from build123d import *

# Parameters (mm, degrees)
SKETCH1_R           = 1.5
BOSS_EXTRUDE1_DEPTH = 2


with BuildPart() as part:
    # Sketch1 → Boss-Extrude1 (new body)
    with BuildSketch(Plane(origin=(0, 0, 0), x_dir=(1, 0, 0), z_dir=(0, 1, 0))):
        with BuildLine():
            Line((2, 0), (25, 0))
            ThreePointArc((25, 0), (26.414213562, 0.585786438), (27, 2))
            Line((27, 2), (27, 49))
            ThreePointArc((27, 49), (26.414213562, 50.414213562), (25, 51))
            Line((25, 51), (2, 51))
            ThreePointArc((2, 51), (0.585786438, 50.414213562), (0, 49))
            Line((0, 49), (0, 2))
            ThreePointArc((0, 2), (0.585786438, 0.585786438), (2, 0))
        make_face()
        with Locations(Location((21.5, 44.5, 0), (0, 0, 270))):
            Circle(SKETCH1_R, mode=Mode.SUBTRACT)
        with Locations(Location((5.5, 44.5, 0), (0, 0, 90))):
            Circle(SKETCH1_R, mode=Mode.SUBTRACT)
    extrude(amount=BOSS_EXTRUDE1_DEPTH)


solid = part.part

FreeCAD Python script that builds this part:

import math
import FreeCAD as App
import Part
import Sketcher

doc = App.newDocument("Part")
params = doc.addObject("Spreadsheet::Sheet", "Params")
for row, (alias, value) in enumerate([
    ("sketch1_diameter", "3 mm"),
    ("sketch1_radius", "2 mm"),
    ("sketch1_width", "23 mm"),
    ("sketch1_height", "47 mm"),
    ("pad1_length", "2 mm"),
], start=1):
    params.set(f"A{row}", alias)
    params.set(f"B{row}", "=" + value)
    params.setAlias(f"B{row}", alias)

body = doc.addObject("PartDesign::Body", "Body")

# Sketch on XZ plane
sketch1 = doc.addObject("Sketcher::SketchObject", "Sketch")
body.addObject(sketch1)
sketch1.AttachmentSupport = (doc.XZ_Plane, [""])
sketch1.MapMode = "FlatFace"
sketch1.addGeometry([
    Part.LineSegment(App.Vector(2, 0, 0), App.Vector(25, 0, 0)),  # 0
    Part.ArcOfCircle(Part.Circle(App.Vector(25, -2, 0), App.Vector(0, 0, 1), 2), math.radians(0), math.radians(90)),  # 1
    Part.LineSegment(App.Vector(27, -2, 0), App.Vector(27, -49, 0)),  # 2
    Part.ArcOfCircle(Part.Circle(App.Vector(25, -49, 0), App.Vector(0, 0, 1), 2), math.radians(-90), math.radians(0)),  # 3
    Part.LineSegment(App.Vector(25, -51, 0), App.Vector(2, -51, 0)),  # 4
    Part.ArcOfCircle(Part.Circle(App.Vector(2, -49, 0), App.Vector(0, 0, 1), 2), math.radians(-180), math.radians(-90)),  # 5
    Part.LineSegment(App.Vector(0, -49, 0), App.Vector(0, -2, 0)),  # 6
    Part.ArcOfCircle(Part.Circle(App.Vector(2, -2, 0), App.Vector(0, 0, 1), 2), math.radians(90), math.radians(180)),  # 7
    Part.Circle(App.Vector(5.5, -44.5, 0), App.Vector(0, 0, 1), 1.5),  # 8
    Part.Circle(App.Vector(21.5, -44.5, 0), App.Vector(0, 0, 1), 1.5),  # 9
], False)
sketch1.addConstraint([
    Sketcher.Constraint("Tangent", 0, 2, 1, 2),
    Sketcher.Constraint("Tangent", 1, 1, 2, 1),
    Sketcher.Constraint("Tangent", 2, 2, 3, 2),
    Sketcher.Constraint("Tangent", 3, 1, 4, 1),
    Sketcher.Constraint("Tangent", 4, 2, 5, 2),
    Sketcher.Constraint("Tangent", 5, 1, 6, 1),
    Sketcher.Constraint("Tangent", 6, 2, 7, 2),
    Sketcher.Constraint("Tangent", 7, 1, 0, 1),
    Sketcher.Constraint("Horizontal", 0),
    Sketcher.Constraint("Vertical", 2),
    Sketcher.Constraint("Horizontal", 4),
    Sketcher.Constraint("Vertical", 6),
    Sketcher.Constraint("Equal", 1, 3),
    Sketcher.Constraint("Equal", 3, 5),
    Sketcher.Constraint("Equal", 5, 7),
    Sketcher.Constraint("Equal", 8, 9),
    Sketcher.Constraint("PointOnObject", 0, 2, -1),
    Sketcher.Constraint("PointOnObject", 5, 1, -2),
    Sketcher.Constraint("Horizontal", 8, 3, 9, 3),
    Sketcher.Constraint("Diameter", 8, 3.0),
    Sketcher.Constraint("Radius", 1, 2.0),
    Sketcher.Constraint("DistanceX", 0, 1, 0, 2, 23.0),
    Sketcher.Constraint("DistanceY", 2, 2, 2, 1, 47.0),
    Sketcher.Constraint("DistanceX", 8, 3, 9, 3, 16.0),
    Sketcher.Constraint("DistanceX", -1, 1, 8, 3, 5.5),
    Sketcher.Constraint("DistanceY", 8, 3, -1, 1, 44.5),
])
sketch1.setExpression("Constraints[19]", "Params.sketch1_diameter")
sketch1.setExpression("Constraints[20]", "Params.sketch1_radius")
sketch1.setExpression("Constraints[21]", "Params.sketch1_width")
sketch1.setExpression("Constraints[22]", "Params.sketch1_height")
pad1 = doc.addObject("PartDesign::Pad", "Pad")
body.addObject(pad1)
pad1.Profile = sketch1
pad1.setExpression("Length", "Params.pad1_length")
pad1.Reversed = True

doc.recompute()
